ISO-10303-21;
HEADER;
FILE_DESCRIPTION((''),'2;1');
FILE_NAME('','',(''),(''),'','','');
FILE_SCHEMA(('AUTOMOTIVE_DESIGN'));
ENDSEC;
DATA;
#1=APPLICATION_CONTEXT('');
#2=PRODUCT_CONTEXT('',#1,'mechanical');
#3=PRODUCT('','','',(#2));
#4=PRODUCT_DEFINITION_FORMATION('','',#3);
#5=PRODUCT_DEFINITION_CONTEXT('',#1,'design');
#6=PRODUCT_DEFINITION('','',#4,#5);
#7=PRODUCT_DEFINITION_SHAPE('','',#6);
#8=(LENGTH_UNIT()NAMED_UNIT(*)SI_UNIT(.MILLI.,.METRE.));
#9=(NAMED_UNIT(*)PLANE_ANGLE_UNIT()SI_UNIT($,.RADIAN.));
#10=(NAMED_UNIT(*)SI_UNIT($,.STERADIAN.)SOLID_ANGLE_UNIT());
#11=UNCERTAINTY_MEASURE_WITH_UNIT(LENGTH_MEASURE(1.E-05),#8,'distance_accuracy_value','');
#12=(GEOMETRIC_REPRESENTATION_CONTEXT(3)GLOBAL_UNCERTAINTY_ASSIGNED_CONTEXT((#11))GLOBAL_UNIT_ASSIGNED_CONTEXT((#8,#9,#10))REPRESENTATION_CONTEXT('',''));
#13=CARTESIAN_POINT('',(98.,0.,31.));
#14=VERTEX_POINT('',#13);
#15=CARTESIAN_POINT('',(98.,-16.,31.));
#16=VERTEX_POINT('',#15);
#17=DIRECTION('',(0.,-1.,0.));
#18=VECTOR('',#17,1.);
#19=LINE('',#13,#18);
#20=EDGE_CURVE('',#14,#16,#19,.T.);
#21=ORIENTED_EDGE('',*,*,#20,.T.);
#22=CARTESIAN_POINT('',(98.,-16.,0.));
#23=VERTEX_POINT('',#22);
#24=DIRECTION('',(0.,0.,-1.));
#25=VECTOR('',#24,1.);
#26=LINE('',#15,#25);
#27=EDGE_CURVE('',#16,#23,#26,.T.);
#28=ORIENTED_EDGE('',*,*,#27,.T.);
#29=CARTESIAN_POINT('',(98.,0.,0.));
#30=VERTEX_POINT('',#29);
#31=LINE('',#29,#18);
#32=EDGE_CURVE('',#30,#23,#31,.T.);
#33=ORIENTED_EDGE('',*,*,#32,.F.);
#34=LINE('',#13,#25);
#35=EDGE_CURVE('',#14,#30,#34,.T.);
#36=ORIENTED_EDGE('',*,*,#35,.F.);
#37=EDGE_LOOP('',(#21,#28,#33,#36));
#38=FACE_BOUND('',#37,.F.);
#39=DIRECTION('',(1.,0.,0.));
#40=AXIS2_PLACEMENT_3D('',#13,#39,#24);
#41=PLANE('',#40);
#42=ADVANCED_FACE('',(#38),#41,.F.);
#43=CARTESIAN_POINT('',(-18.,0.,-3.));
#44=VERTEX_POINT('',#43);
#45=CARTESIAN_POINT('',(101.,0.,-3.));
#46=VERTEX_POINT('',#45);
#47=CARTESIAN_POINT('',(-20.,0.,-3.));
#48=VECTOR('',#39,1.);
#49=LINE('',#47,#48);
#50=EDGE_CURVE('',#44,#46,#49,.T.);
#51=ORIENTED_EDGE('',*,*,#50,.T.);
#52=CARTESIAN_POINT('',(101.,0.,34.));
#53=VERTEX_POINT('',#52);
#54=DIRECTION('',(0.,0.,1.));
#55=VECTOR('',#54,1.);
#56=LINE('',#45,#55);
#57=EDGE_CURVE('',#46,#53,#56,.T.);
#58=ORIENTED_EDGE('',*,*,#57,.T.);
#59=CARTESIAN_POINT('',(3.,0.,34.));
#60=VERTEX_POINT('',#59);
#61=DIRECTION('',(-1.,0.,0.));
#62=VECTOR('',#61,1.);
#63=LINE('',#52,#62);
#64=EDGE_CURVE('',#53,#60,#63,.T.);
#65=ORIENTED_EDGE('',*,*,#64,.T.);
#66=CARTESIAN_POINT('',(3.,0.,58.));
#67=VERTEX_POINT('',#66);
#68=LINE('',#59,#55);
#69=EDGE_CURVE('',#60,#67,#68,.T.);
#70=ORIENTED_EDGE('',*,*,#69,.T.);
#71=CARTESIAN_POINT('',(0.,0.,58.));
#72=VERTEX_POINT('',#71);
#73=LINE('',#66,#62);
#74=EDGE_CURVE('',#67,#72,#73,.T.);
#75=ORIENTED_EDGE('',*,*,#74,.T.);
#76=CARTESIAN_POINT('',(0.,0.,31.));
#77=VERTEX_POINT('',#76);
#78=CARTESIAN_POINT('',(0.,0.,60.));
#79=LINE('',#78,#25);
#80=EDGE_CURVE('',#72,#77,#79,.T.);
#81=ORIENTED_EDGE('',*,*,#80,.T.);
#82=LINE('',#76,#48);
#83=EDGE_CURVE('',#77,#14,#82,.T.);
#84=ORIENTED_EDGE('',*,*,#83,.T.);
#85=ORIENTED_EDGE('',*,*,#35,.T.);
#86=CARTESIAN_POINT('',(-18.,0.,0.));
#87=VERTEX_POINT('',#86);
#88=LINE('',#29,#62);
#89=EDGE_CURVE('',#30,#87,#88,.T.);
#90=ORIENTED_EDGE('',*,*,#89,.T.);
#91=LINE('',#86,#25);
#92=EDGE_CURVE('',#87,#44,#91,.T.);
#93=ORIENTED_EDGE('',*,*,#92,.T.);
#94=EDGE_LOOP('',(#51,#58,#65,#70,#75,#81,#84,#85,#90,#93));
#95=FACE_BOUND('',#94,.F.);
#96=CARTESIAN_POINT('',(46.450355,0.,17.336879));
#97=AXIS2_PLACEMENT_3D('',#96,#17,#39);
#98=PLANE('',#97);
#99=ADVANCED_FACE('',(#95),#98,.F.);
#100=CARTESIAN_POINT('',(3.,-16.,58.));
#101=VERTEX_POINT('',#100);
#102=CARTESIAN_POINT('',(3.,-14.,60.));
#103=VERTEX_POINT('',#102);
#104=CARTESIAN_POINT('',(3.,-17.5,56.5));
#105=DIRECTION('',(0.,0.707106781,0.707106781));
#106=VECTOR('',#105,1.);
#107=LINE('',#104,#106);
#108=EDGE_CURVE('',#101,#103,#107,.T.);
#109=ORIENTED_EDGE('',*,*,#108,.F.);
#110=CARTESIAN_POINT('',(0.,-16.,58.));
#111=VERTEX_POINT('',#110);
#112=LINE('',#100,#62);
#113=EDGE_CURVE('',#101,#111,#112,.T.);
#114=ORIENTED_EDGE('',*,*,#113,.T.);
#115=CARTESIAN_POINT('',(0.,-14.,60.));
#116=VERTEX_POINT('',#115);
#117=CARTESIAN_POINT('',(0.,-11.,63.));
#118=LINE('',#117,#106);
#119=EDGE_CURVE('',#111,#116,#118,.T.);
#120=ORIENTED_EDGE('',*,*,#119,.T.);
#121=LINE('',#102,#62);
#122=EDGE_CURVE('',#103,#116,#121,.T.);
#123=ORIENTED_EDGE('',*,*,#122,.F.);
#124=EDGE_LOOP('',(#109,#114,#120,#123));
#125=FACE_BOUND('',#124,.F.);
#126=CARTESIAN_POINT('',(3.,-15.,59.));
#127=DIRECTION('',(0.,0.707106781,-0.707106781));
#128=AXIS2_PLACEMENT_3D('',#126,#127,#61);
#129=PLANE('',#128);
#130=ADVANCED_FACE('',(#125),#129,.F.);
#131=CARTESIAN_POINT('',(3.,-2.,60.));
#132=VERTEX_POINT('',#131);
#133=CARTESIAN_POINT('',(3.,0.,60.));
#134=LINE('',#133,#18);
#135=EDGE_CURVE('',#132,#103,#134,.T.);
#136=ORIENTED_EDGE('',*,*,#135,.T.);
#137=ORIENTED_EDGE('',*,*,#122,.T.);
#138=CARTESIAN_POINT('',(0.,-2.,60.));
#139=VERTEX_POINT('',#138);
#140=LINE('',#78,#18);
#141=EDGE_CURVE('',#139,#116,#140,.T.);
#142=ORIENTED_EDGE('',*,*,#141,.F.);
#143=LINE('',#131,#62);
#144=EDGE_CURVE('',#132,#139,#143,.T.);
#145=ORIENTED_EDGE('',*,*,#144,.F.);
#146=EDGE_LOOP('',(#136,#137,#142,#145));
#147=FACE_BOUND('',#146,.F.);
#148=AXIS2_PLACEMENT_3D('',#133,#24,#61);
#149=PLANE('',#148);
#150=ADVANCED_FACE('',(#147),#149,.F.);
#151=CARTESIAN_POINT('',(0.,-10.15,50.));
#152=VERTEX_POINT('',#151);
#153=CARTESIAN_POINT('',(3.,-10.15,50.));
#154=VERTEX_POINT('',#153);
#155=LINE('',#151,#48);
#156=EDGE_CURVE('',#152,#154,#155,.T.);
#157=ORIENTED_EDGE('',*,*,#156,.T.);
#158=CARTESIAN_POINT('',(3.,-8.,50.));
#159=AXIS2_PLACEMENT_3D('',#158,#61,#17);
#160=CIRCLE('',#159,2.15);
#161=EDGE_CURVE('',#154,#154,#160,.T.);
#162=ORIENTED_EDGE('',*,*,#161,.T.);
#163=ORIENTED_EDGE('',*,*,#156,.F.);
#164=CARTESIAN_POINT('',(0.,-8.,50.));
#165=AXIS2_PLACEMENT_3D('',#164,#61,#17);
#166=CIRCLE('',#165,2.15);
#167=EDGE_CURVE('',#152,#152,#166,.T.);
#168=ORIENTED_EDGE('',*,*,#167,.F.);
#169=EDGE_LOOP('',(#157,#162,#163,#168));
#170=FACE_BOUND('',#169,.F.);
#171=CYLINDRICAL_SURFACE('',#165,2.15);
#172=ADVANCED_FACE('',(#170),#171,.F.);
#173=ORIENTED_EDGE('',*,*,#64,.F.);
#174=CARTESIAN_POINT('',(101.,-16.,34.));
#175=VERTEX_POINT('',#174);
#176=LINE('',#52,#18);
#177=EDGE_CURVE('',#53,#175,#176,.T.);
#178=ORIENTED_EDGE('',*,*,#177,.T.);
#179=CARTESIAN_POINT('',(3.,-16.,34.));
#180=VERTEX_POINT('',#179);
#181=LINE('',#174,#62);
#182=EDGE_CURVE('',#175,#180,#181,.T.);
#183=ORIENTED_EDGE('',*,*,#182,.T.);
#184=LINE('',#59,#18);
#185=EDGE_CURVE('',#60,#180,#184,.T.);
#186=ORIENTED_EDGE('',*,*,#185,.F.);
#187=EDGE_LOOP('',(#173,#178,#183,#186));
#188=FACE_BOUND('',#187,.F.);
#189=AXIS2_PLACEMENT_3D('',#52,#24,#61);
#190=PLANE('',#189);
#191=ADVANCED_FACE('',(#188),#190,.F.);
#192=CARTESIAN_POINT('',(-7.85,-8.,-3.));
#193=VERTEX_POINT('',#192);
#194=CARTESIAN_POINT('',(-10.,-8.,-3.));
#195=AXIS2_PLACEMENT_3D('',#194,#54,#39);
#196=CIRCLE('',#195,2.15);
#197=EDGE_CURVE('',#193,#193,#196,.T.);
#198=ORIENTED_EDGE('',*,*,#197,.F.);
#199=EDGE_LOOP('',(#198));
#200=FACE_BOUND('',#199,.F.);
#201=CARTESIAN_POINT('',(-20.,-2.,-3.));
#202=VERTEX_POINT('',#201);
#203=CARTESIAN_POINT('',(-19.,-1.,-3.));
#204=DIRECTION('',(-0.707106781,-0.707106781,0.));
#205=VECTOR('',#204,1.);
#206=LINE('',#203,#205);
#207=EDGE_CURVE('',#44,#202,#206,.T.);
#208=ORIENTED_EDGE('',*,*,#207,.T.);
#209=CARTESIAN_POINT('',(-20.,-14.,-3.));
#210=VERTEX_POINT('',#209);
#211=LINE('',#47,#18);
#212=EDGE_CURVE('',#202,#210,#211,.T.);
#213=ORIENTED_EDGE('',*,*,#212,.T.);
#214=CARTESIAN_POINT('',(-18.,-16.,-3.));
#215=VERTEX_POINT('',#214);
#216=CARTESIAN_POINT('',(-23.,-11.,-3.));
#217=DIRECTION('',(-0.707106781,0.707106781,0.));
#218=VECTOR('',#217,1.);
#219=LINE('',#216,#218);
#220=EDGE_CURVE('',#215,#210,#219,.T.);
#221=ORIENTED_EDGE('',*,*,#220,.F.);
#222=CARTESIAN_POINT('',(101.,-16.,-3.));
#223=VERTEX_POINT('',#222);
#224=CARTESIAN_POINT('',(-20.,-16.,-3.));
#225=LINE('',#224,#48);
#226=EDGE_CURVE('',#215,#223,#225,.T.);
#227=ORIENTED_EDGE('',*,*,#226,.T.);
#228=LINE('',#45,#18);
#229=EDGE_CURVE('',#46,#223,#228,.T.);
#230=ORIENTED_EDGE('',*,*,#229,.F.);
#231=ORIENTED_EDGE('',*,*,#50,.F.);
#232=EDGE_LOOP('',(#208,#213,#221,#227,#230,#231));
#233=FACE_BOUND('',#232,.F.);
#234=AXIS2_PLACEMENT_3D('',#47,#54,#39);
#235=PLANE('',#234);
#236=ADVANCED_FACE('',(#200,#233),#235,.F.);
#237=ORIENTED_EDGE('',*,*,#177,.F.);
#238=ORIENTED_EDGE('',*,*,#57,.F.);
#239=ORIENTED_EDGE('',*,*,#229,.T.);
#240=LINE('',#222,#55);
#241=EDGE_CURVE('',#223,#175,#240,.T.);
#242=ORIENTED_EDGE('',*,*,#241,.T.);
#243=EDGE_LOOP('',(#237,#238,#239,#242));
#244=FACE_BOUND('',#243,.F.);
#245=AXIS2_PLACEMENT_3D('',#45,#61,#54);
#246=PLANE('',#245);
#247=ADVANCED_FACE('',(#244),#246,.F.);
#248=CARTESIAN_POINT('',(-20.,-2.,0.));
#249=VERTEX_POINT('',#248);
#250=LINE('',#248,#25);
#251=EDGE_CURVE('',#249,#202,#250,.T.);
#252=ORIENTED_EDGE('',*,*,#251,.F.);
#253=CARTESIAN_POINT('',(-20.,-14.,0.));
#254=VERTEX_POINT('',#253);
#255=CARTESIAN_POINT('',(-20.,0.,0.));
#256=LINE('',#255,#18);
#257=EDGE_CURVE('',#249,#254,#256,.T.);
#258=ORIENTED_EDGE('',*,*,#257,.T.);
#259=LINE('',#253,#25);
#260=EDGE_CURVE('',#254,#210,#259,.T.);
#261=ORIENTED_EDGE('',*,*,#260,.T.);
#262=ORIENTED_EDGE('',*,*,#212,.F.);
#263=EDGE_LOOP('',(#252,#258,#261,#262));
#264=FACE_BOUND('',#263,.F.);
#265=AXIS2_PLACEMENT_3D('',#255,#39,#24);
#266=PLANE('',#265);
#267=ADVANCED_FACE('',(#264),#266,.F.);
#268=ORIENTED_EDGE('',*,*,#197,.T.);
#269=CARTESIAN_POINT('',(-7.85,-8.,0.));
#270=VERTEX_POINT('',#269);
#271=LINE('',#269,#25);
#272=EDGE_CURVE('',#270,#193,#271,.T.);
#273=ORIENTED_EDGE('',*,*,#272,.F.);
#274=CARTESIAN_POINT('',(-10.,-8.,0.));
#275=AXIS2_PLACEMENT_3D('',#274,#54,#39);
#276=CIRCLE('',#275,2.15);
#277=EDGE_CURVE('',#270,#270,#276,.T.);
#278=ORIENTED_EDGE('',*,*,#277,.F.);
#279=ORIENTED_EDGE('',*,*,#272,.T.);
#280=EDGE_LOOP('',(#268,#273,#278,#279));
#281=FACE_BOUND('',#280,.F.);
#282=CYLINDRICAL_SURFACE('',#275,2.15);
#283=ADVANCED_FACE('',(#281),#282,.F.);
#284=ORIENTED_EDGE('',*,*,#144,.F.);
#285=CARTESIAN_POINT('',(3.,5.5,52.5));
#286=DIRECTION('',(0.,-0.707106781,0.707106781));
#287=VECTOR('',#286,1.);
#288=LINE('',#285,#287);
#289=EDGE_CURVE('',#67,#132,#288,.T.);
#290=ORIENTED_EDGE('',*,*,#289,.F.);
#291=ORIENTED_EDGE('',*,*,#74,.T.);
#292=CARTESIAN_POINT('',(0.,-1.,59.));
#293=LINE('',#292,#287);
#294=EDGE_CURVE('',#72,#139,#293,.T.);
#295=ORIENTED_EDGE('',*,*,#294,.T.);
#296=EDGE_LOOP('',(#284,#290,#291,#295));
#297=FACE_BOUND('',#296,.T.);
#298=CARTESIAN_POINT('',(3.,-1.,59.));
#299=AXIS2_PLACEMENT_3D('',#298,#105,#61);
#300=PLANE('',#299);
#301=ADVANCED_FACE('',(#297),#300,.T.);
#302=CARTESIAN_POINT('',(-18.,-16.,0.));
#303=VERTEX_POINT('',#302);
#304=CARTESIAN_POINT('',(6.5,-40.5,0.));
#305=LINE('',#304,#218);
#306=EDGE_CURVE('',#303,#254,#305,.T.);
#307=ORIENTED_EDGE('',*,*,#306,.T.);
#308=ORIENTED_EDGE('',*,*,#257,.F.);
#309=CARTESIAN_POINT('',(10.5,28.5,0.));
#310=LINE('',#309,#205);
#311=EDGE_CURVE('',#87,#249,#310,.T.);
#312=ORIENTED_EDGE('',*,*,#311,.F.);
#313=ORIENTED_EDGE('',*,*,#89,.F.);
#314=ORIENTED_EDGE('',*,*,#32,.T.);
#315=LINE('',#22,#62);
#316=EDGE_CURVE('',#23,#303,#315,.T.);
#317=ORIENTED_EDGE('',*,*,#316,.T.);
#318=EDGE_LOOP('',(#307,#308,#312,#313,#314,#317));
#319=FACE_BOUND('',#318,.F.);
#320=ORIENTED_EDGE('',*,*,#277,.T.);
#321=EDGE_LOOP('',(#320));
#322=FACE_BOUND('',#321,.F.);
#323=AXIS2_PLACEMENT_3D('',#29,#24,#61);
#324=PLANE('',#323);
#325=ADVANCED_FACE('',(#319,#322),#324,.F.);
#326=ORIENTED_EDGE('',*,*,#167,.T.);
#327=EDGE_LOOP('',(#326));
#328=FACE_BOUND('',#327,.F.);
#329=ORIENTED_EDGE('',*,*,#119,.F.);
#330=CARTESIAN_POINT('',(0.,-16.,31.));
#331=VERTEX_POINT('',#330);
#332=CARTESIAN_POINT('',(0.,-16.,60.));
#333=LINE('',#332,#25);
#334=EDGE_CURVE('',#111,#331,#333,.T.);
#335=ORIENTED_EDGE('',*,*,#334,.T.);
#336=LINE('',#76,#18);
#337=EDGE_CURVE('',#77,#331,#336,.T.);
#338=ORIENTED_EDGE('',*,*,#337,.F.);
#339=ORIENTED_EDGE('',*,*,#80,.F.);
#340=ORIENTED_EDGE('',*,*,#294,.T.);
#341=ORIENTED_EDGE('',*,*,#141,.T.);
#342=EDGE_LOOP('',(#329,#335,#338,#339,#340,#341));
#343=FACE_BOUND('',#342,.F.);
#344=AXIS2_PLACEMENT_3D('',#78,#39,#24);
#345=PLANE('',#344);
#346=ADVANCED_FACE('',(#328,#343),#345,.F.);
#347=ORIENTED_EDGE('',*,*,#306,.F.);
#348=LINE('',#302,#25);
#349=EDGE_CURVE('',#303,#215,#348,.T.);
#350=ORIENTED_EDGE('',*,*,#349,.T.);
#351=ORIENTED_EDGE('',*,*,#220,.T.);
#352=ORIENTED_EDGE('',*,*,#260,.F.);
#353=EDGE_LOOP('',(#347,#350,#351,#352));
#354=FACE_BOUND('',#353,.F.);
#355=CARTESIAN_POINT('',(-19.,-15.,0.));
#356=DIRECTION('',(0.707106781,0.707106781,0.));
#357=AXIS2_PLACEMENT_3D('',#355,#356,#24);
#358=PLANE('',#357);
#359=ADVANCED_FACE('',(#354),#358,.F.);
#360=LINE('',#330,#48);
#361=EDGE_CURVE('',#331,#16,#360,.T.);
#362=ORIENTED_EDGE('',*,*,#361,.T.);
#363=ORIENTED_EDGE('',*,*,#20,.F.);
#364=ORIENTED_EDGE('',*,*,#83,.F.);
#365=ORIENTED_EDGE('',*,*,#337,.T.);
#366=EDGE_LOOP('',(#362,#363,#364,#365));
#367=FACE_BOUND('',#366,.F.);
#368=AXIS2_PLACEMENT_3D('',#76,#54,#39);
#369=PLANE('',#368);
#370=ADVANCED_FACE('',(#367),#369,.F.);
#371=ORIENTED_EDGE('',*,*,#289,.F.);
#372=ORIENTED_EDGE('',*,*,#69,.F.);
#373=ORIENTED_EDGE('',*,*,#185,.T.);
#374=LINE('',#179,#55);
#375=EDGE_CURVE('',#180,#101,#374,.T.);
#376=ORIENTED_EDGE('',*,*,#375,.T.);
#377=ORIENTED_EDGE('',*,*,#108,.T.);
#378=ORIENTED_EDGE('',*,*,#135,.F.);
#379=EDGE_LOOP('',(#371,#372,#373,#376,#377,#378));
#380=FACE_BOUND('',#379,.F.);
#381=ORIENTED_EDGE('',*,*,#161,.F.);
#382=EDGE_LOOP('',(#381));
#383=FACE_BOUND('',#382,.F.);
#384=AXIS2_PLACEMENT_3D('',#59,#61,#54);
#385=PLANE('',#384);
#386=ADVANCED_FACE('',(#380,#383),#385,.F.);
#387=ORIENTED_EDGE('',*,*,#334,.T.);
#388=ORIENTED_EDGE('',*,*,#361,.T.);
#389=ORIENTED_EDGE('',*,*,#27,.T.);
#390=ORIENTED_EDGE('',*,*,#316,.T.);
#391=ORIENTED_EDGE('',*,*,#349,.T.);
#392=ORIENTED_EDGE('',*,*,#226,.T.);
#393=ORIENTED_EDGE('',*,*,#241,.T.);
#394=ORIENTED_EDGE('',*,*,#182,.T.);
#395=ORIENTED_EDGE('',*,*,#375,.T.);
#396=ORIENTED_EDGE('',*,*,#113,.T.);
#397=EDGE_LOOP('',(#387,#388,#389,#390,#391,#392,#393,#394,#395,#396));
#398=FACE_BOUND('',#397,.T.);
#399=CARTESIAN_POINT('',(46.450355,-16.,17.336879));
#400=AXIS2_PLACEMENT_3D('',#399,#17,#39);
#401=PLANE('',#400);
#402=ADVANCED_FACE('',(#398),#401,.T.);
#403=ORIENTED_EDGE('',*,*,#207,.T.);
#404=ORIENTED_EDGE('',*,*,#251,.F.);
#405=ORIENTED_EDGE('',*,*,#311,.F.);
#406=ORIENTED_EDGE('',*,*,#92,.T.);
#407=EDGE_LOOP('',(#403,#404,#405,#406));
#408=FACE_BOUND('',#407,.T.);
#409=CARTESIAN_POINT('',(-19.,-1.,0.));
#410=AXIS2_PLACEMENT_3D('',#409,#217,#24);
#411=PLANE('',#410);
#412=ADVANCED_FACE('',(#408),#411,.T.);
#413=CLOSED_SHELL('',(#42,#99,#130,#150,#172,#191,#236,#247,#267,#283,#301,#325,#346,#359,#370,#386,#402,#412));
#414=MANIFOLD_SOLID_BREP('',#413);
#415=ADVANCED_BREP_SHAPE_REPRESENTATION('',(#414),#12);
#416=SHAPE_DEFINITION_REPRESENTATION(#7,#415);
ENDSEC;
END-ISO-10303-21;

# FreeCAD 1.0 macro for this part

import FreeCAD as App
import Part
import Sketcher

V = App.Vector
Q = App.Units.Quantity


def edges_at(feature, points):
    """Names of the edges that pass closest to the given points."""
    edges = feature.Shape.Edges
    near = lambda p: min(range(len(edges)), key=lambda i: edges[i].distToShape(Part.Vertex(*p))[0])
    return sorted({f"Edge{near(p) + 1}" for p in points})

doc = App.newDocument("Part")
body = doc.addObject("PartDesign::Body", "Body")

# Sketch on XZ plane
sketch1 = body.newObject("Sketcher::SketchObject", "Sketch")
sketch1.AttachmentSupport = (doc.getObject("XZ_Plane"), [""])
sketch1.MapMode = "FlatFace"
sketch1.addGeometry([
    Part.LineSegment(V(98, 0, 0), V(-20, 0, 0)),  # 0
    Part.LineSegment(V(-20, 0, 0), V(-20, -3, 0)),  # 1
    Part.LineSegment(V(-20, -3, 0), V(101, -3, 0)),  # 2
    Part.LineSegment(V(101, -3, 0), V(101, 34, 0)),  # 3
    Part.LineSegment(V(101, 34, 0), V(3, 34, 0)),  # 4
    Part.LineSegment(V(3, 34, 0), V(3, 60, 0)),  # 5
    Part.LineSegment(V(3, 60, 0), V(0, 60, 0)),  # 6
    Part.LineSegment(V(0, 60, 0), V(0, 31, 0)),  # 7
    Part.LineSegment(V(0, 31, 0), V(98, 31, 0)),  # 8
    Part.LineSegment(V(98, 31, 0), V(98, 0, 0)),  # 9
], False)
sketch1.addConstraint([
    Sketcher.Constraint("Coincident", 0, 2, 1, 1),
    Sketcher.Constraint("Coincident", 1, 2, 2, 1),
    Sketcher.Constraint("Coincident", 2, 2, 3, 1),
    Sketcher.Constraint("Coincident", 3, 2, 4, 1),
    Sketcher.Constraint("Coincident", 4, 2, 5, 1),
    Sketcher.Constraint("Coincident", 5, 2, 6, 1),
    Sketcher.Constraint("Coincident", 6, 2, 7, 1),
    Sketcher.Constraint("Coincident", 7, 2, 8, 1),
    Sketcher.Constraint("Coincident", 8, 2, 9, 1),
    Sketcher.Constraint("Coincident", 9, 2, 0, 1),
    Sketcher.Constraint("Horizontal", 0),
    Sketcher.Constraint("Vertical", 1),
    Sketcher.Constraint("Horizontal", 2),
    Sketcher.Constraint("Vertical", 3),
    Sketcher.Constraint("Horizontal", 4),
    Sketcher.Constraint("Vertical", 5),
    Sketcher.Constraint("Horizontal", 6),
    Sketcher.Constraint("Vertical", 7),
    Sketcher.Constraint("Horizontal", 8),
    Sketcher.Constraint("Vertical", 9),
    Sketcher.Constraint("PointOnObject", 0, 2, -1),
    Sketcher.Constraint("PointOnObject", 6, 2, -2),
    Sketcher.Constraint("Equal", 4, 8),
    Sketcher.Constraint("Equal", 6, 1),
    Sketcher.Constraint("DistanceX", 0, 2, 0, 1, Q("118 mm")),
    Sketcher.Constraint("DistanceX", 2, 1, 2, 2, Q("121 mm")),
    Sketcher.Constraint("DistanceX", 4, 2, 4, 1, Q("98 mm")),
    Sketcher.Constraint("DistanceY", 3, 1, 3, 2, Q("37 mm")),
    Sketcher.Constraint("DistanceY", 5, 1, 5, 2, Q("26 mm")),
    Sketcher.Constraint("DistanceY", 7, 2, 7, 1, Q("29 mm")),
])
pad1 = body.newObject("PartDesign::Pad", "Pad")
pad1.Profile = sketch1
pad1.Length = 16

# Sketch on XY plane
sketch2 = body.newObject("Sketcher::SketchObject", "Sketch001")
sketch2.AttachmentSupport = (doc.getObject("XY_Plane"), [""])
sketch2.MapMode = "FlatFace"
sketch2.addGeometry(Part.Circle(V(-10, -8, 0), V(0, 0, 1), 2.1), False)
sketch2.addConstraint([
    Sketcher.Constraint("Diameter", 0, Q("4.3 mm")),
    Sketcher.Constraint("DistanceX", 0, 3, -1, 1, Q("10 mm")),
    Sketcher.Constraint("DistanceY", 0, 3, -1, 1, Q("8 mm")),
])
pocket1 = body.newObject("PartDesign::Pocket", "Pocket")
pocket1.Profile = sketch2
pocket1.Length = 25

# Sketch on YZ plane
sketch3 = body.newObject("Sketcher::SketchObject", "Sketch002")
sketch3.AttachmentSupport = (doc.getObject("YZ_Plane"), [""])
sketch3.MapMode = "FlatFace"
sketch3.addGeometry(Part.Circle(V(-8, 50, 0), V(0, 0, 1), 2.1), False)
sketch3.addConstraint([
    Sketcher.Constraint("Diameter", 0, Q("4.3 mm")),
    Sketcher.Constraint("DistanceX", 0, 3, -1, 1, Q("8 mm")),
    Sketcher.Constraint("DistanceY", -1, 1, 0, 3, Q("50 mm")),
])
pocket2 = body.newObject("PartDesign::Pocket", "Pocket001")
pocket2.Profile = sketch3
pocket2.Length = 25
pocket2.Reversed = True
doc.recompute()

chamfer = body.newObject("PartDesign::Chamfer", "Chamfer")
chamfer.Base = (pocket2, edges_at(pocket2, [
    (1.5, -16, 60),
    (1.5, 0, 60),
    (-20, -16, -1.5),
    (-20, 0, -1.5),
]))
chamfer.Size = 2

doc.recompute()
